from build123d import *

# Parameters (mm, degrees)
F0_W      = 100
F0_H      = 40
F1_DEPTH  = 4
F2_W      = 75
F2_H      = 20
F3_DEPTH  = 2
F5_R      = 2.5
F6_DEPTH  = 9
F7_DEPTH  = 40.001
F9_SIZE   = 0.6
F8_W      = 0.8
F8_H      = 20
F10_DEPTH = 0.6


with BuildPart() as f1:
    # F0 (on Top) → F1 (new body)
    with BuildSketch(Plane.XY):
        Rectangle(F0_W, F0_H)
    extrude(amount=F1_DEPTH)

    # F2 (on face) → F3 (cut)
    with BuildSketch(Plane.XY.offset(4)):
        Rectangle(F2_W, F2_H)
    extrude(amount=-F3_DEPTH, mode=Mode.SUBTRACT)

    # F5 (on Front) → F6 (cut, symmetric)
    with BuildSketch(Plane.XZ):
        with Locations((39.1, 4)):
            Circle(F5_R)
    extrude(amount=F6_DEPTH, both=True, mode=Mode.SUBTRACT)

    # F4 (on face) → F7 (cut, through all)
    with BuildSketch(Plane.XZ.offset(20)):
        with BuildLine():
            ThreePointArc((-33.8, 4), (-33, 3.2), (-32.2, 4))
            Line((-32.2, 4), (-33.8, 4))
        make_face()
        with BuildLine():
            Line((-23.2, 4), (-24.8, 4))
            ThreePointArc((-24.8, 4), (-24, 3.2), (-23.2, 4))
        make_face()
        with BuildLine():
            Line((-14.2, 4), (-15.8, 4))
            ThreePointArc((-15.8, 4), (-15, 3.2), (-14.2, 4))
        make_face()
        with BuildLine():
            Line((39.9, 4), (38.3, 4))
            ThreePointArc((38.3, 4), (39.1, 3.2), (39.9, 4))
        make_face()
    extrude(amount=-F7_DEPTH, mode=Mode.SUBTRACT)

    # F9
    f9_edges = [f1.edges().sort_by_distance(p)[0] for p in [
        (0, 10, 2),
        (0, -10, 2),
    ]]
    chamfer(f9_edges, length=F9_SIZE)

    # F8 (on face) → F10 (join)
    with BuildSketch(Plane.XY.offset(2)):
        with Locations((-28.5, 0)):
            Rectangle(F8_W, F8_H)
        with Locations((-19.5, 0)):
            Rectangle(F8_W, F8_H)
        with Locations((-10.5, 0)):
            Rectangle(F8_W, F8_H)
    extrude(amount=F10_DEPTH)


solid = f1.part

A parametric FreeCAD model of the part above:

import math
import FreeCAD as App
import Part
import Sketcher

V = App.Vector
Q = App.Units.Quantity


def edges_at(feature, points):
    """Names of the edges that pass closest to the given points."""
    edges = feature.Shape.Edges
    near = lambda p: min(range(len(edges)), key=lambda i: edges[i].distToShape(Part.Vertex(*p))[0])
    return sorted({f"Edge{near(p) + 1}" for p in points})

doc = App.newDocument("Part")
body = doc.addObject("PartDesign::Body", "Body")

# Sketch on XY plane
sketch1 = body.newObject("Sketcher::SketchObject", "Sketch")
sketch1.AttachmentSupport = (doc.getObject("XY_Plane"), [""])
sketch1.MapMode = "FlatFace"
sketch1.addGeometry(Part.LineSegment(V(-50, 20, 0), V(-50, -20, 0)), False)
sketch1.addGeometry(Part.LineSegment(V(-50, -20, 0), V(50, -20, 0)), False)
sketch1.addGeometry(Part.LineSegment(V(50, -20, 0), V(50, 20, 0)), False)
sketch1.addGeometry(Part.LineSegment(V(50, 20, 0), V(-50, 20, 0)), False)
sketch1.addConstraint(Sketcher.Constraint("Coincident", 0, 2, 1, 1))
sketch1.addConstraint(Sketcher.Constraint("Coincident", 1, 2, 2, 1))
sketch1.addConstraint(Sketcher.Constraint("Coincident", 2, 2, 3, 1))
sketch1.addConstraint(Sketcher.Constraint("Coincident", 3, 2, 0, 1))
sketch1.addConstraint(Sketcher.Constraint("Vertical", 0))
sketch1.addConstraint(Sketcher.Constraint("Horizontal", 1))
sketch1.addConstraint(Sketcher.Constraint("Vertical", 2))
sketch1.addConstraint(Sketcher.Constraint("Horizontal", 3))
sketch1.addConstraint(Sketcher.Constraint("Symmetric", 0, 2, 2, 2, -1, 1))
sketch1.addConstraint(Sketcher.Constraint("DistanceX", 1, 1, 1, 2, Q("100 mm")))
sketch1.addConstraint(Sketcher.Constraint("DistanceY", 0, 2, 0, 1, Q("40 mm")))
pad1 = body.newObject("PartDesign::Pad", "Pad")
pad1.Profile = sketch1
pad1.Length = 4

# Sketch on XY plane
sketch2 = body.newObject("Sketcher::SketchObject", "Sketch001")
sketch2.AttachmentSupport = (doc.getObject("XY_Plane"), [""])
sketch2.MapMode = "FlatFace"
sketch2.AttachmentOffset = App.Placement(V(0, 0, 4), App.Rotation())
sketch2.addGeometry(Part.LineSegment(V(-37.5, 10, 0), V(-37.5, -10, 0)), False)
sketch2.addGeometry(Part.LineSegment(V(-37.5, -10, 0), V(37.5, -10, 0)), False)
sketch2.addGeometry(Part.LineSegment(V(37.5, -10, 0), V(37.5, 10, 0)), False)
sketch2.addGeometry(Part.LineSegment(V(37.5, 10, 0), V(-37.5, 10, 0)), False)
sketch2.addConstraint(Sketcher.Constraint("Coincident", 0, 2, 1, 1))
sketch2.addConstraint(Sketcher.Constraint("Coincident", 1, 2, 2, 1))
sketch2.addConstraint(Sketcher.Constraint("Coincident", 2, 2, 3, 1))
sketch2.addConstraint(Sketcher.Constraint("Coincident", 3, 2, 0, 1))
sketch2.addConstraint(Sketcher.Constraint("Vertical", 0))
sketch2.addConstraint(Sketcher.Constraint("Horizontal", 1))
sketch2.addConstraint(Sketcher.Constraint("Vertical", 2))
sketch2.addConstraint(Sketcher.Constraint("Horizontal", 3))
sketch2.addConstraint(Sketcher.Constraint("Symmetric", 0, 2, 2, 2, -1, 1))
sketch2.addConstraint(Sketcher.Constraint("DistanceX", 1, 1, 1, 2, Q("75 mm")))
sketch2.addConstraint(Sketcher.Constraint("DistanceY", 0, 2, 0, 1, Q("20 mm")))
pocket1 = body.newObject("PartDesign::Pocket", "Pocket")
pocket1.Profile = sketch2
pocket1.Length = 2

# Sketch on XZ plane
sketch3 = body.newObject("Sketcher::SketchObject", "Sketch002")
sketch3.AttachmentSupport = (doc.getObject("XZ_Plane"), [""])
sketch3.MapMode = "FlatFace"
sketch3.addGeometry(Part.Circle(V(39.1, 4, 0), V(0, 0, 1), 2.5), False)
sketch3.addConstraint(Sketcher.Constraint("Diameter", 0, Q("5 mm")))
sketch3.addConstraint(Sketcher.Constraint("DistanceY", -1, 1, 0, 3, Q("4 mm")))
sketch3.addConstraint(Sketcher.Constraint("DistanceX", -1, 1, 0, 3, Q("39.1 mm")))
pocket2 = body.newObject("PartDesign::Pocket", "Pocket001")
pocket2.Profile = sketch3
pocket2.Length = 18
pocket2.Midplane = True

# Sketch on XZ plane
sketch4 = body.newObject("Sketcher::SketchObject", "Sketch003")
sketch4.AttachmentSupport = (doc.getObject("XZ_Plane"), [""])
sketch4.MapMode = "FlatFace"
sketch4.AttachmentOffset = App.Placement(V(0, 0, 20), App.Rotation())
sketch4.addGeometry(Part.ArcOfCircle(Part.Circle(V(-33, 4, 0), V(0, 0, 1), 0.8), math.radians(180), math.radians(360)), False)
sketch4.addGeometry(Part.LineSegment(V(-32.2, 4, 0), V(-33.8, 4, 0)), False)
sketch4.addGeometry(Part.LineSegment(V(-23.2, 4, 0), V(-24.8, 4, 0)), False)
sketch4.addGeometry(Part.ArcOfCircle(Part.Circle(V(-24, 4, 0), V(0, 0, 1), 0.8), math.radians(180), math.radians(360)), False)
sketch4.addGeometry(Part.LineSegment(V(-14.2, 4, 0), V(-15.8, 4, 0)), False)
sketch4.addGeometry(Part.ArcOfCircle(Part.Circle(V(-15, 4, 0), V(0, 0, 1), 0.8), math.radians(180), math.radians(360)), False)
sketch4.addGeometry(Part.LineSegment(V(39.9, 4, 0), V(38.3, 4, 0)), False)
sketch4.addGeometry(Part.ArcOfCircle(Part.Circle(V(39.1, 4, 0), V(0, 0, 1), 0.8), math.radians(180), math.radians(360)), False)
sketch4.addConstraint(Sketcher.Constraint("Coincident", 0, 1, 1, 2))
sketch4.addConstraint(Sketcher.Constraint("Coincident", 1, 1, 0, 2))
sketch4.addConstraint(Sketcher.Constraint("Coincident", 2, 1, 3, 2))
sketch4.addConstraint(Sketcher.Constraint("Coincident", 3, 1, 2, 2))
sketch4.addConstraint(Sketcher.Constraint("Coincident", 4, 1, 5, 2))
sketch4.addConstraint(Sketcher.Constraint("Coincident", 5, 1, 4, 2))
sketch4.addConstraint(Sketcher.Constraint("Coincident", 6, 1, 7, 2))
sketch4.addConstraint(Sketcher.Constraint("Coincident", 7, 1, 6, 2))
sketch4.addConstraint(Sketcher.Constraint("Horizontal", 1))
sketch4.addConstraint(Sketcher.Constraint("Horizontal", 2))
sketch4.addConstraint(Sketcher.Constraint("Horizontal", 4))
sketch4.addConstraint(Sketcher.Constraint("Horizontal", 6))
sketch4.addConstraint(Sketcher.Constraint("Equal", 0, 3))
sketch4.addConstraint(Sketcher.Constraint("Equal", 3, 5))
sketch4.addConstraint(Sketcher.Constraint("Equal", 5, 7))
sketch4.addConstraint(Sketcher.Constraint("Horizontal", 0, 3, 3, 3))
sketch4.addConstraint(Sketcher.Constraint("Horizontal", 3, 3, 5, 3))
sketch4.addConstraint(Sketcher.Constraint("Horizontal", 5, 3, 7, 3))
sketch4.addConstraint(Sketcher.Constraint("Horizontal", 7, 3, 0, 1))
sketch4.addConstraint(Sketcher.Constraint("Horizontal", 1, 1, 2, 1))
sketch4.addConstraint(Sketcher.Constraint("Horizontal", 3, 1, 4, 1))
sketch4.addConstraint(Sketcher.Constraint("Horizontal", 5, 1, 6, 1))
sketch4.addConstraint(Sketcher.Constraint("Radius", 0, Q("0.8 mm")))
sketch4.addConstraint(Sketcher.Constraint("DistanceX", 0, 3, -1, 1, Q("33 mm")))
sketch4.addConstraint(Sketcher.Constraint("DistanceY", -1, 1, 0, 3, Q("4 mm")))
sketch4.addConstraint(Sketcher.Constraint("DistanceX", 3, 3, -1, 1, Q("24 mm")))
sketch4.addConstraint(Sketcher.Constraint("DistanceX", 5, 3, -1, 1, Q("15 mm")))
sketch4.addConstraint(Sketcher.Constraint("DistanceX", -1, 1, 7, 3, Q("39.1 mm")))
pocket3 = body.newObject("PartDesign::Pocket", "Pocket002")
pocket3.Profile = sketch4
pocket3.Type = "ThroughAll"
doc.recompute()

chamfer = body.newObject("PartDesign::Chamfer", "Chamfer")
chamfer.Base = (pocket3, edges_at(pocket3, [(0, 10, 2), (0, -10, 2)]))
chamfer.Size = 0.6

# Sketch on XY plane
sketch5 = body.newObject("Sketcher::SketchObject", "Sketch004")
sketch5.AttachmentSupport = (doc.getObject("XY_Plane"), [""])
sketch5.MapMode = "FlatFace"
sketch5.AttachmentOffset = App.Placement(V(0, 0, 2), App.Rotation())
sketch5.addGeometry(Part.LineSegment(V(-28.9, 10, 0), V(-28.9, -10, 0)), False)
sketch5.addGeometry(Part.LineSegment(V(-28.9, -10, 0), V(-28.1, -10, 0)), False)
sketch5.addGeometry(Part.LineSegment(V(-28.1, -10, 0), V(-28.1, 10, 0)), False)
sketch5.addGeometry(Part.LineSegment(V(-28.1, 10, 0), V(-28.9, 10, 0)), False)
sketch5.addGeometry(Part.LineSegment(V(-19.9, 10, 0), V(-19.9, -10, 0)), False)
sketch5.addGeometry(Part.LineSegment(V(-19.9, -10, 0), V(-19.1, -10, 0)), False)
sketch5.addGeometry(Part.LineSegment(V(-19.1, -10, 0), V(-19.1, 10, 0)), False)
sketch5.addGeometry(Part.LineSegment(V(-19.1, 10, 0), V(-19.9, 10, 0)), False)
sketch5.addGeometry(Part.LineSegment(V(-10.9, 10, 0), V(-10.9, -10, 0)), False)
sketch5.addGeometry(Part.LineSegment(V(-10.9, -10, 0), V(-10.1, -10, 0)), False)
sketch5.addGeometry(Part.LineSegment(V(-10.1, -10, 0), V(-10.1, 10, 0)), False)
sketch5.addGeometry(Part.LineSegment(V(-10.1, 10, 0), V(-10.9, 10, 0)), False)
sketch5.addConstraint(Sketcher.Constraint("Coincident", 0, 2, 1, 1))
sketch5.addConstraint(Sketcher.Constraint("Coincident", 1, 2, 2, 1))
sketch5.addConstraint(Sketcher.Constraint("Coincident", 2, 2, 3, 1))
sketch5.addConstraint(Sketcher.Constraint("Coincident", 3, 2, 0, 1))
sketch5.addConstraint(Sketcher.Constraint("Coincident", 4, 2, 5, 1))
sketch5.addConstraint(Sketcher.Constraint("Coincident", 5, 2, 6, 1))
sketch5.addConstraint(Sketcher.Constraint("Coincident", 6, 2, 7, 1))
sketch5.addConstraint(Sketcher.Constraint("Coincident", 7, 2, 4, 1))
sketch5.addConstraint(Sketcher.Constraint("Coincident", 8, 2, 9, 1))
sketch5.addConstraint(Sketcher.Constraint("Coincident", 9, 2, 10, 1))
sketch5.addConstraint(Sketcher.Constraint("Coincident", 10, 2, 11, 1))
sketch5.addConstraint(Sketcher.Constraint("Coincident", 11, 2, 8, 1))
sketch5.addConstraint(Sketcher.Constraint("Vertical", 0))
sketch5.addConstraint(Sketcher.Constraint("Horizontal", 1))
sketch5.addConstraint(Sketcher.Constraint("Vertical", 2))
sketch5.addConstraint(Sketcher.Constraint("Horizontal", 3))
sketch5.addConstraint(Sketcher.Constraint("Vertical", 4))
sketch5.addConstraint(Sketcher.Constraint("Horizontal", 5))
sketch5.addConstraint(Sketcher.Constraint("Vertical", 6))
sketch5.addConstraint(Sketcher.Constraint("Horizontal", 7))
sketch5.addConstraint(Sketcher.Constraint("Vertical", 8))
sketch5.addConstraint(Sketcher.Constraint("Horizontal", 9))
sketch5.addConstraint(Sketcher.Constraint("Vertical", 10))
sketch5.addConstraint(Sketcher.Constraint("Horizontal", 11))
sketch5.addConstraint(Sketcher.Constraint("Horizontal", 1, 2, 4, 2))
sketch5.addConstraint(Sketcher.Constraint("Horizontal", 3, 2, 6, 2))
sketch5.addConstraint(Sketcher.Constraint("Horizontal", 5, 2, 8, 2))
sketch5.addConstraint(Sketcher.Constraint("Horizontal", 7, 2, 10, 2))
sketch5.addConstraint(Sketcher.Constraint("Equal", 3, 5))
sketch5.addConstraint(Sketcher.Constraint("Equal", 7, 9))
sketch5.addConstraint(Sketcher.Constraint("DistanceY", 0, 2, 0, 1, Q("20 mm")))
sketch5.addConstraint(Sketcher.Constraint("DistanceX", 1, 1, 1, 2, Q("0.8 mm")))
sketch5.addConstraint(Sketcher.Constraint("DistanceY", 0, 2, -1, 1, Q("10 mm")))
sketch5.addConstraint(Sketcher.Constraint("DistanceX", 0, 2, 4, 2, Q("9 mm")))
sketch5.addConstraint(Sketcher.Constraint("DistanceX", 4, 2, 8, 2, Q("9 mm")))
sketch5.addConstraint(Sketcher.Constraint("DistanceX", 0, 2, -1, 1, Q("28.9 mm")))
pad2 = body.newObject("PartDesign::Pad", "Pad001")
pad2.Profile = sketch5
pad2.Length = 0.6

doc.recompute()
